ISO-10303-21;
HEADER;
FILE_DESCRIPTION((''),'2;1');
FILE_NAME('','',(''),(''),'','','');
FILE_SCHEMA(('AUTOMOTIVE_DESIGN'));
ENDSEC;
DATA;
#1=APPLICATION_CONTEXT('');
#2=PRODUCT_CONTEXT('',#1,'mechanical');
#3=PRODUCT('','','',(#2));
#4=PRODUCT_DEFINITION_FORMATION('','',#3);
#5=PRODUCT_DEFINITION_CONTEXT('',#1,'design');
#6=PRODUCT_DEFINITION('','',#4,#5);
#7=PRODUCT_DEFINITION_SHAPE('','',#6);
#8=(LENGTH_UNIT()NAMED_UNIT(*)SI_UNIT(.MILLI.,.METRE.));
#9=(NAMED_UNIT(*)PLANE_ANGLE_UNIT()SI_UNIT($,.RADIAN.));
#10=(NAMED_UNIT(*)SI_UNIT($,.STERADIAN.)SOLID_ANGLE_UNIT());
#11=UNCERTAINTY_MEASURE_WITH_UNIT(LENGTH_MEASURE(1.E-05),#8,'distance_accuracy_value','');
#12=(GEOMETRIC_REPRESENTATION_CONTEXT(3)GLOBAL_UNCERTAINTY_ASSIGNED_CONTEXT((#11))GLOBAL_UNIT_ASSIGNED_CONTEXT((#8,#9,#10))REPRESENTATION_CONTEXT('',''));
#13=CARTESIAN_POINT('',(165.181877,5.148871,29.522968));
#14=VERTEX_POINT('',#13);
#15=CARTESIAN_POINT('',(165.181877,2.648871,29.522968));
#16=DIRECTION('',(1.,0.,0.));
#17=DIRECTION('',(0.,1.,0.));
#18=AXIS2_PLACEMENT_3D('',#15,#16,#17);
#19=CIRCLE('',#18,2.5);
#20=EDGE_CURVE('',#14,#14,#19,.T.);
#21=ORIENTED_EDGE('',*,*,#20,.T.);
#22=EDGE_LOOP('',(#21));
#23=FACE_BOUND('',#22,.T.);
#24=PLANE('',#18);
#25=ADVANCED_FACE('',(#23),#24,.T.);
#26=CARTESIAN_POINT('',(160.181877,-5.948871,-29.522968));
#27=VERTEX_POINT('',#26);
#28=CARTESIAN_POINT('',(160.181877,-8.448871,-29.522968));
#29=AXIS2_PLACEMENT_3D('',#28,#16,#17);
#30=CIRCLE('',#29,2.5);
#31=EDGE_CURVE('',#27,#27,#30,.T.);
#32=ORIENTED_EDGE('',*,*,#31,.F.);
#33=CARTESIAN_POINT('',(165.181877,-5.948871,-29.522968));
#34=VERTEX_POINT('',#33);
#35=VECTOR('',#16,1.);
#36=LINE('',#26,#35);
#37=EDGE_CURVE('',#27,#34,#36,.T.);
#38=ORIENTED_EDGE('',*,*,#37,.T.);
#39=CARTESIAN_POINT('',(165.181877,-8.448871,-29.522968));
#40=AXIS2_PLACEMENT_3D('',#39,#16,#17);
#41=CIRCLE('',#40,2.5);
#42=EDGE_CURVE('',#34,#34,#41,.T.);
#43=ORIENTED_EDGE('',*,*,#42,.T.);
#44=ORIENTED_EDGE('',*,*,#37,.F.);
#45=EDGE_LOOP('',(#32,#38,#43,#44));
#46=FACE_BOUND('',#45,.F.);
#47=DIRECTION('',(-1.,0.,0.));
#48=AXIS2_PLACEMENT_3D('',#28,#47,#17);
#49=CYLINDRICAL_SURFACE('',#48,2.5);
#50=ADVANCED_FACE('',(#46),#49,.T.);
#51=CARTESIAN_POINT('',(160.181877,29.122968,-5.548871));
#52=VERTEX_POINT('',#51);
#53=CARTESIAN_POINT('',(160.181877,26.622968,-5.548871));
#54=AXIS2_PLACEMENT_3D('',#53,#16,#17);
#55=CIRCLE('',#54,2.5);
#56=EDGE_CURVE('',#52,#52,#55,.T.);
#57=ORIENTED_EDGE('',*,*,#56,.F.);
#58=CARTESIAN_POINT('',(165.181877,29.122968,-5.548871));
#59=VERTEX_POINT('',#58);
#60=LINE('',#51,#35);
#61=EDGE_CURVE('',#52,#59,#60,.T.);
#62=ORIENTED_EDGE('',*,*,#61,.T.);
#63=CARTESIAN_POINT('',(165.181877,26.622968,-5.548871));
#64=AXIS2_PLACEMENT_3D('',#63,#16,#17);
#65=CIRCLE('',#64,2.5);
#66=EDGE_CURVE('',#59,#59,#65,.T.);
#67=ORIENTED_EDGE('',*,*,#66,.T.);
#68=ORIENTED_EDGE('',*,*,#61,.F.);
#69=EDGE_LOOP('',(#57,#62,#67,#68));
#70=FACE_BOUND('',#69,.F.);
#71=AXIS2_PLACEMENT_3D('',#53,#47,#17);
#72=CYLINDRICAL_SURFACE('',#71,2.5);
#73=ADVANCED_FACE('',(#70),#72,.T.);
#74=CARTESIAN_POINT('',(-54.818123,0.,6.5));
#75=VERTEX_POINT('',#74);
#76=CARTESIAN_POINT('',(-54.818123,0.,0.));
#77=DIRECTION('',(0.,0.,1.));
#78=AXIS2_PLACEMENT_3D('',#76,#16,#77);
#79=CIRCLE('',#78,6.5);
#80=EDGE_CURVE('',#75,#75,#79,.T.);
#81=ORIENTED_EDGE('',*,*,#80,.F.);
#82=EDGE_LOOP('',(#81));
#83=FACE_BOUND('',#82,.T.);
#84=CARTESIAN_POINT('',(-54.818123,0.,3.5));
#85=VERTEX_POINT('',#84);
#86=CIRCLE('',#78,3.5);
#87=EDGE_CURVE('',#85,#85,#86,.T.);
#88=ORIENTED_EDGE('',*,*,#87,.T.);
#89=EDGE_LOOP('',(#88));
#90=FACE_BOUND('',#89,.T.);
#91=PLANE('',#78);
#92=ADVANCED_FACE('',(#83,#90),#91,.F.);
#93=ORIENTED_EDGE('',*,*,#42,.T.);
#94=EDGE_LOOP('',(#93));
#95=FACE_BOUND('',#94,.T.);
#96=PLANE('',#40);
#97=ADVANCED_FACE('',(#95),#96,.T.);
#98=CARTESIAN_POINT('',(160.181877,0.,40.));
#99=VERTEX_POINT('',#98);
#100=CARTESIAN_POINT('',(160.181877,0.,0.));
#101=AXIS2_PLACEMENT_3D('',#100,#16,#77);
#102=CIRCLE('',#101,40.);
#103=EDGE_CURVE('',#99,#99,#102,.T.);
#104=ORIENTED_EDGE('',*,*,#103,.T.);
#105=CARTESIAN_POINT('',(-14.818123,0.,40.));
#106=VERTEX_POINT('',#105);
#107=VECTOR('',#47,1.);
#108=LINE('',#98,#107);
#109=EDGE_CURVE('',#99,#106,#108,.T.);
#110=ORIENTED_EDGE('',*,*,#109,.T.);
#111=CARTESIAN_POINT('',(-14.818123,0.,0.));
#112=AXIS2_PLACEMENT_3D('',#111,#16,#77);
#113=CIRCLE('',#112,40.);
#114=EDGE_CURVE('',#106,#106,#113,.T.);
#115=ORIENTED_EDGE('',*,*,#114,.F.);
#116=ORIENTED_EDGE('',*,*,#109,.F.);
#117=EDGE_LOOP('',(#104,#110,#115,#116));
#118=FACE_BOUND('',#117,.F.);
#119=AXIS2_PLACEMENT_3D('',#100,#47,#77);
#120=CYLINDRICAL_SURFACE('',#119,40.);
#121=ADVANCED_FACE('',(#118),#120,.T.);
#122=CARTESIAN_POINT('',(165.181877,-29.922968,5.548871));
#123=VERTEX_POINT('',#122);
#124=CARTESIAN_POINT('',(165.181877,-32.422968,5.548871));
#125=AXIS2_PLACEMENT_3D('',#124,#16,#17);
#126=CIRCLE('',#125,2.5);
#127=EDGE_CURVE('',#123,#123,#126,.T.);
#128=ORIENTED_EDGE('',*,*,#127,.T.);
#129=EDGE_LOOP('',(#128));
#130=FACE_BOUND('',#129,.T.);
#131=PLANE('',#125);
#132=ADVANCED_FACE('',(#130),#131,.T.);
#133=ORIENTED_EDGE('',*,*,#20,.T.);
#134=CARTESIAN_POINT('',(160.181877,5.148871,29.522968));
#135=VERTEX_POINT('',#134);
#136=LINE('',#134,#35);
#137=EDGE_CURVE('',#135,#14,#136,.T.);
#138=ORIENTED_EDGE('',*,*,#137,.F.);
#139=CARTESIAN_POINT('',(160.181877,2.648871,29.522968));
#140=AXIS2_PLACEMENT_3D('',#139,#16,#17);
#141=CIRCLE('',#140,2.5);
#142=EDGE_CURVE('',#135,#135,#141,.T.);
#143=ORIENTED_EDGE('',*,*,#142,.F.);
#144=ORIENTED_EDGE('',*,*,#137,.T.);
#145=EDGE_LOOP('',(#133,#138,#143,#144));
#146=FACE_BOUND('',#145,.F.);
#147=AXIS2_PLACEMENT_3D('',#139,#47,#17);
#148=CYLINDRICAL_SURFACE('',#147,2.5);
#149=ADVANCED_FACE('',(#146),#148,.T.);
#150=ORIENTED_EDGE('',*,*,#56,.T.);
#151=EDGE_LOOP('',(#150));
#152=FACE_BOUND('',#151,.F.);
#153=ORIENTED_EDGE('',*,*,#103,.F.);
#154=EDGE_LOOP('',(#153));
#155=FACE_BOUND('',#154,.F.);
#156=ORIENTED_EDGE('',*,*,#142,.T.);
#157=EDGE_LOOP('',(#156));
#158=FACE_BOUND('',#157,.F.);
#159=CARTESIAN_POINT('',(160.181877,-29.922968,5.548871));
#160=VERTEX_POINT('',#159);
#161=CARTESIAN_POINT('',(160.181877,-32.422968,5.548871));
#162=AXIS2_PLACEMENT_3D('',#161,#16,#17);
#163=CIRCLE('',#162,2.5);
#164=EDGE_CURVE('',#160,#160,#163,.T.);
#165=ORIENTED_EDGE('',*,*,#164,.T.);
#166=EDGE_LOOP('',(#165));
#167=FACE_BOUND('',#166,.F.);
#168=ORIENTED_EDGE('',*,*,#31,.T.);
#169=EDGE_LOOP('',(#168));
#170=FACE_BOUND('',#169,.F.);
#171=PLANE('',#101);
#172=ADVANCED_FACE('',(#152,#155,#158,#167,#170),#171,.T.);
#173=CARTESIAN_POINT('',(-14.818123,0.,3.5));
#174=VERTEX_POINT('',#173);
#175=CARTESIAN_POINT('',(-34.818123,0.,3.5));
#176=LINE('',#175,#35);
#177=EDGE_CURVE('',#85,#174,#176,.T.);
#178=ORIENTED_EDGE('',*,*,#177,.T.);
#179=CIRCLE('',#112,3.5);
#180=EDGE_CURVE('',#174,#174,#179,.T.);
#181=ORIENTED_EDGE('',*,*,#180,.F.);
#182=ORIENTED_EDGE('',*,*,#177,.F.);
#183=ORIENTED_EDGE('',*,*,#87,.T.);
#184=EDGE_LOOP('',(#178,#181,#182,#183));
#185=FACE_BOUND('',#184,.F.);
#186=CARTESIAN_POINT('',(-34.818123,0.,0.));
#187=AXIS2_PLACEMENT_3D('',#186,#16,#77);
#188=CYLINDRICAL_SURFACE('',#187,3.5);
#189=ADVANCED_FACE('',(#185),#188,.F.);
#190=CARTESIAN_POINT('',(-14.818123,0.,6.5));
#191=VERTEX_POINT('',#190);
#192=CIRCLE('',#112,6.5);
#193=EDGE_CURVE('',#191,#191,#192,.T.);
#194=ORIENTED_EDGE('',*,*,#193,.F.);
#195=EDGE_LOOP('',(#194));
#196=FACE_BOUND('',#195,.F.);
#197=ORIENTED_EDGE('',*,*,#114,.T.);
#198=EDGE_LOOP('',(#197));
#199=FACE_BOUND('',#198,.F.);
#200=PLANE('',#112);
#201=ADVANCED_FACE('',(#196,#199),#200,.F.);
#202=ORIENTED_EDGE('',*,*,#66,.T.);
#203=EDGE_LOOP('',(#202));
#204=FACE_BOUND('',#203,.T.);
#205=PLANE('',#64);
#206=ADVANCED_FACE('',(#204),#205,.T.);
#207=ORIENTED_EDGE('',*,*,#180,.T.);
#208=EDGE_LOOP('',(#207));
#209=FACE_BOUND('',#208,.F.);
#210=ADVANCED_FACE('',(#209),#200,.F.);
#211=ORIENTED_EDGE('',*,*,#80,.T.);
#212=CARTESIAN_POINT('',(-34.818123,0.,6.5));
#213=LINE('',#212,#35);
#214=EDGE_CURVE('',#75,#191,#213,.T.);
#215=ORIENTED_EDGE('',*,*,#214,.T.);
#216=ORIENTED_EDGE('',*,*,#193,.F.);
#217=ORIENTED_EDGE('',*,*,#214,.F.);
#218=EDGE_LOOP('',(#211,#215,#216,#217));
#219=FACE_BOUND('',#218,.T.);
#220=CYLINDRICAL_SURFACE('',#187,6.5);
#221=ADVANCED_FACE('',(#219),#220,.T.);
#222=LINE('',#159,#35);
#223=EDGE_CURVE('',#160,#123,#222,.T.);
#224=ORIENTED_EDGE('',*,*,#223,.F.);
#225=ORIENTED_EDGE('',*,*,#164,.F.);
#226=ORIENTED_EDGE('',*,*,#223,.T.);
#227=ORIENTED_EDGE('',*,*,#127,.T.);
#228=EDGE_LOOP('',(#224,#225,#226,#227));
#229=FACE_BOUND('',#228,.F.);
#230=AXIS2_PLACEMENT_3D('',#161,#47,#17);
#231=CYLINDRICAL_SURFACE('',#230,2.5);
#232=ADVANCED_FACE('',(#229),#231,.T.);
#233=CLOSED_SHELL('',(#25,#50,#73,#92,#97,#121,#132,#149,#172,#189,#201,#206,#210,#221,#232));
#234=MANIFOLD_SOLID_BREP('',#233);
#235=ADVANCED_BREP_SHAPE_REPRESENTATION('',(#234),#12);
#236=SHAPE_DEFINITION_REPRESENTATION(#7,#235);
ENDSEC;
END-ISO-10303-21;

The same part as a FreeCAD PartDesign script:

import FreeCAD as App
import Part
import Sketcher

V = App.Vector
Q = App.Units.Quantity

doc = App.newDocument("Part")
body = doc.addObject("PartDesign::Body", "Body")

# Sketch on XZ plane
sketch1 = body.newObject("Sketcher::SketchObject", "Sketch")
sketch1.AttachmentSupport = (doc.getObject("XZ_Plane"), [""])
sketch1.MapMode = "FlatFace"
sketch1.addGeometry([
    Part.LineSegment(V(-54.818123, 6.5, 0), V(-54.818123, 3.5, 0)),  # 0
    Part.LineSegment(V(-54.818123, 3.5, 0), V(-14.818123, 3.5, 0)),  # 1
    Part.LineSegment(V(-14.818123, 3.5, 0), V(-14.818123, 0, 0)),  # 2
    Part.LineSegment(V(-14.818123, 0, 0), V(160.181877, 0, 0)),  # 3
    Part.LineSegment(V(160.181877, 0, 0), V(160.181877, 40, 0)),  # 4
    Part.LineSegment(V(160.181877, 40, 0), V(-14.818123, 40, 0)),  # 5
    Part.LineSegment(V(-14.818123, 40, 0), V(-14.818123, 6.5, 0)),  # 6
    Part.LineSegment(V(-14.818123, 6.5, 0), V(-54.818123, 6.5, 0)),  # 7
], False)
sketch1.addConstraint([
    Sketcher.Constraint("Coincident", 0, 2, 1, 1),
    Sketcher.Constraint("Coincident", 1, 2, 2, 1),
    Sketcher.Constraint("Coincident", 2, 2, 3, 1),
    Sketcher.Constraint("Coincident", 3, 2, 4, 1),
    Sketcher.Constraint("Coincident", 4, 2, 5, 1),
    Sketcher.Constraint("Coincident", 5, 2, 6, 1),
    Sketcher.Constraint("Coincident", 6, 2, 7, 1),
    Sketcher.Constraint("Coincident", 7, 2, 0, 1),
    Sketcher.Constraint("Vertical", 0),
    Sketcher.Constraint("Horizontal", 1),
    Sketcher.Constraint("Vertical", 2),
    Sketcher.Constraint("Horizontal", 3),
    Sketcher.Constraint("Vertical", 4),
    Sketcher.Constraint("Horizontal", 5),
    Sketcher.Constraint("Vertical", 6),
    Sketcher.Constraint("Horizontal", 7),
    Sketcher.Constraint("PointOnObject", 2, 2, -1),
    Sketcher.Constraint("Vertical", 2, 2, 5, 2),
    Sketcher.Constraint("Equal", 7, 4),
    Sketcher.Constraint("DistanceX", 1, 1, 1, 2, Q("40 mm")),
    Sketcher.Constraint("DistanceX", 3, 1, 3, 2, Q("175 mm")),
    Sketcher.Constraint("DistanceY", 0, 2, 0, 1, Q("3 mm")),
    Sketcher.Constraint("DistanceY", 2, 2, 2, 1, Q("3.5 mm")),
    Sketcher.Constraint("DistanceX", 0, 2, -1, 1, Q("54.818123 mm")),
])
revolution = body.newObject("PartDesign::Revolution", "Revolution")
revolution.Profile = sketch1
revolution.ReferenceAxis = (sketch1, ["H_Axis"])
revolution.Angle = 360

# Sketch on YZ plane
sketch2 = body.newObject("Sketcher::SketchObject", "Sketch001")
sketch2.AttachmentSupport = (doc.getObject("YZ_Plane"), [""])
sketch2.MapMode = "FlatFace"
sketch2.AttachmentOffset = App.Placement(V(0, 0, 160.181877), App.Rotation())
sketch2.addGeometry([
    Part.Circle(V(2.648871, 29.522968, 0), V(0, 0, 1), 2.5),
    Part.Circle(V(-8.448871, -29.522968, 0), V(0, 0, 1), 2.5),
    Part.Circle(V(26.622968, -5.548871, 0), V(0, 0, 1), 2.5),
    Part.Circle(V(-32.422968, 5.548871, 0), V(0, 0, 1), 2.5),
], False)
sketch2.addConstraint([
    Sketcher.Constraint("Equal", 0, 1),
    Sketcher.Constraint("Equal", 1, 2),
    Sketcher.Constraint("Equal", 2, 3),
    Sketcher.Constraint("Diameter", 0, Q("5 mm")),
    Sketcher.Constraint("DistanceX", -1, 1, 0, 3, Q("2.648871 mm")),
    Sketcher.Constraint("DistanceX", 1, 3, -1, 1, Q("8.448871 mm")),
    Sketcher.Constraint("DistanceX", -1, 1, 2, 3, Q("26.622968 mm")),
    Sketcher.Constraint("DistanceY", 2, 3, -1, 1, Q("5.548871 mm")),
    Sketcher.Constraint("DistanceY", -1, 1, 3, 3, Q("5.548871 mm")),
    Sketcher.Constraint("DistanceY", 2, 3, 0, 3, Q("35.071839 mm")),
    Sketcher.Constraint("DistanceY", 1, 3, 3, 3, Q("35.071839 mm")),
    Sketcher.Constraint("DistanceX", 3, 3, 0, 3, Q("35.071839 mm")),
])
pad1 = body.newObject("PartDesign::Pad", "Pad")
pad1.Profile = sketch2
pad1.Length = 5

doc.recompute()
